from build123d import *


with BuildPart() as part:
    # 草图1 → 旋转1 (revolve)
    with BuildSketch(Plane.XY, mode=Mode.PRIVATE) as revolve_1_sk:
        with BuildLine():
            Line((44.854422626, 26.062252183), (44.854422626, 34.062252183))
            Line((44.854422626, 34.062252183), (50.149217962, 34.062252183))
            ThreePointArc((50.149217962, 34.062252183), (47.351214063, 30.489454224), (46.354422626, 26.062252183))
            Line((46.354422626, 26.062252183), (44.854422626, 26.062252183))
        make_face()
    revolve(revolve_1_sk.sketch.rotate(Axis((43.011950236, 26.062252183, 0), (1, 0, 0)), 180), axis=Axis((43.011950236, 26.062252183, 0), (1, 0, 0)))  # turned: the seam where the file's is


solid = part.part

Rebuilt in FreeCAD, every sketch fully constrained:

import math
import FreeCAD as App
import Part
import Sketcher

V = App.Vector

doc = App.newDocument("Part")
body = doc.addObject("PartDesign::Body", "Body")

sketch1 = body.newObject("Sketcher::SketchObject", "Sketch")
sketch1.AttachmentSupport = (doc.getObject("XY_Plane"), [""])
sketch1.MapMode = "FlatFace"
sketch1.addGeometry([
    Part.LineSegment(V(44.9, 34.1, 0), V(44.9, 26.1, 0)),
    Part.LineSegment(V(44.9, 26.1, 0), V(46.4, 26.1, 0)),
    Part.ArcOfCircle(Part.Circle(V(56.7, 26.1, 0), V(0, 0, 1), 10.3), math.radians(129), math.radians(180)),
    Part.LineSegment(V(50.1, 34.1, 0), V(44.9, 34.1, 0)),
], False)
sketch1.addGeometry(Part.LineSegment(V(44.9, 26.1, 0), V(56.7, 26.1, 0)), True)
sketch1.addConstraint([
    Sketcher.Constraint("Coincident", 0, 2, 1, 1),
    Sketcher.Constraint("Coincident", 1, 2, 2, 2),
    Sketcher.Constraint("Coincident", 2, 1, 3, 1),
    Sketcher.Constraint("Coincident", 3, 2, 0, 1),
    Sketcher.Constraint("Vertical", 0),
    Sketcher.Constraint("Horizontal", 1),
    Sketcher.Constraint("Horizontal", 3),
    Sketcher.Constraint("Horizontal", 4),
    Sketcher.Constraint("Coincident", 4, 1, 0, 2),
    Sketcher.Constraint("Coincident", 4, 2, 2, 3),
    Sketcher.Constraint("DistanceY", 0, 2, 0, 1, 8.0),
    Sketcher.Constraint("Radius", 2, 10.33),
    Sketcher.Constraint("DistanceX", 1, 1, 1, 2, 1.5),
    Sketcher.Constraint("DistanceX", -1, 1, 2, 3, 56.684423),
    Sketcher.Constraint("DistanceY", -1, 1, 2, 3, 26.062252),
])
revolution = body.newObject("PartDesign::Revolution", "Revolution")
revolution.Profile = sketch1
revolution.ReferenceAxis = (sketch1, ["Axis0"])
revolution.Angle = 360

doc.recompute()
